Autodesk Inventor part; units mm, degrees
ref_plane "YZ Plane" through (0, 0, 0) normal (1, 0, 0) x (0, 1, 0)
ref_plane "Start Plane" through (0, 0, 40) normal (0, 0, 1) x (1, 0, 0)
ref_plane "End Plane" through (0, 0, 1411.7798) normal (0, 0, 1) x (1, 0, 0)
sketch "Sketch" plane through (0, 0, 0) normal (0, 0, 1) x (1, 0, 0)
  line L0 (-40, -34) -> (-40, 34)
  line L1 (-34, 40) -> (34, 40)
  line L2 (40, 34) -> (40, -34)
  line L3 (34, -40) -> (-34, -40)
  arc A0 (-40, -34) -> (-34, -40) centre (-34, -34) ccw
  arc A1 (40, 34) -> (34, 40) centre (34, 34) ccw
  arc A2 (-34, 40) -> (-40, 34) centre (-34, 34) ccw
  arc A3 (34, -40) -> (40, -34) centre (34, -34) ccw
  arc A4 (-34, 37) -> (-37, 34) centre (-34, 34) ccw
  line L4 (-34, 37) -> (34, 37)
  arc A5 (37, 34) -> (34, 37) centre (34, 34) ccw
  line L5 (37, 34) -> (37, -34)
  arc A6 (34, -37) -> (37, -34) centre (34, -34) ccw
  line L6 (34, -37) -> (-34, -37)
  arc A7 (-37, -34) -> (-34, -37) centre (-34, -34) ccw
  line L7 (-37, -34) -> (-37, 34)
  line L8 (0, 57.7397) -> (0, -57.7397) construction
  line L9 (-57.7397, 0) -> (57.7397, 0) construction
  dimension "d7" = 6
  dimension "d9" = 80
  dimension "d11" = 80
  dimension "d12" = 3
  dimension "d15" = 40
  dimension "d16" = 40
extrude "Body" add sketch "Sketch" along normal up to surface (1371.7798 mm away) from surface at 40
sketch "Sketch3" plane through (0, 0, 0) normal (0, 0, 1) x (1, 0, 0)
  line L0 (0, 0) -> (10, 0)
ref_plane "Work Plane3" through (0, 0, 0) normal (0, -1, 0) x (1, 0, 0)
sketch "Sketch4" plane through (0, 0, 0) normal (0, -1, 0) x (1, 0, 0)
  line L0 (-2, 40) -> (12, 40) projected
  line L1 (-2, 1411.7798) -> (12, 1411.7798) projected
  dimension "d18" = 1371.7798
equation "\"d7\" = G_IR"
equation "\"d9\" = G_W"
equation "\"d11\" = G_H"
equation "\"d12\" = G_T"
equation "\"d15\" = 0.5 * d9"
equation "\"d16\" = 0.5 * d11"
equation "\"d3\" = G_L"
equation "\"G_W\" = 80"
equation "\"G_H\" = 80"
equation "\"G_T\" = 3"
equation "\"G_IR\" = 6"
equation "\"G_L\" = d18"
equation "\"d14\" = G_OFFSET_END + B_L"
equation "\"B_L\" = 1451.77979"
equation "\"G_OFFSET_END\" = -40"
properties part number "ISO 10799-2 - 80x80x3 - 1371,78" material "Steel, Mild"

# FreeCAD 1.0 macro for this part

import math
import FreeCAD as App
import Part
import Sketcher

V = App.Vector

doc = App.newDocument("Part")
body = doc.addObject("PartDesign::Body", "Body")

sketch1 = doc.addObject("Sketcher::SketchObject", "Sketch")
body.addObject(sketch1)
sketch1.AttachmentSupport = (doc.XY_Plane, [""])
sketch1.MapMode = "FlatFace"
sketch1.AttachmentOffset = App.Placement(V(0, 0, 40), App.Rotation())
sketch1.addGeometry(Part.LineSegment(V(-40, 34, 0), V(-40, -34, 0)), False)
sketch1.addGeometry(Part.ArcOfCircle(Part.Circle(V(-34, -34, 0), V(0, 0, 1), 6), math.radians(180), math.radians(270)), False)
sketch1.addGeometry(Part.LineSegment(V(-34, -40, 0), V(34, -40, 0)), False)
sketch1.addGeometry(Part.ArcOfCircle(Part.Circle(V(34, -34, 0), V(0, 0, 1), 6), math.radians(-90), math.radians(0)), False)
sketch1.addGeometry(Part.LineSegment(V(40, -34, 0), V(40, 34, 0)), False)
sketch1.addGeometry(Part.ArcOfCircle(Part.Circle(V(34, 34, 0), V(0, 0, 1), 6), math.radians(0), math.radians(90)), False)
sketch1.addGeometry(Part.LineSegment(V(34, 40, 0), V(-34, 40, 0)), False)
sketch1.addGeometry(Part.ArcOfCircle(Part.Circle(V(-34, 34, 0), V(0, 0, 1), 6), math.radians(90), math.radians(180)), False)
sketch1.addGeometry(Part.ArcOfCircle(Part.Circle(V(-34, 34, 0), V(0, 0, 1), 3), math.radians(90), math.radians(180)), False)
sketch1.addGeometry(Part.LineSegment(V(-34, 37, 0), V(34, 37, 0)), False)
sketch1.addGeometry(Part.ArcOfCircle(Part.Circle(V(34, 34, 0), V(0, 0, 1), 3), math.radians(0), math.radians(90)), False)
sketch1.addGeometry(Part.LineSegment(V(37, 34, 0), V(37, -34, 0)), False)
sketch1.addGeometry(Part.ArcOfCircle(Part.Circle(V(34, -34, 0), V(0, 0, 1), 3), math.radians(-90), math.radians(0)), False)
sketch1.addGeometry(Part.LineSegment(V(34, -37, 0), V(-34, -37, 0)), False)
sketch1.addGeometry(Part.ArcOfCircle(Part.Circle(V(-34, -34, 0), V(0, 0, 1), 3), math.radians(180), math.radians(270)), False)
sketch1.addGeometry(Part.LineSegment(V(-37, -34, 0), V(-37, 34, 0)), False)
sketch1.addConstraint(Sketcher.Constraint("Tangent", 0, 2, 1, 1))
sketch1.addConstraint(Sketcher.Constraint("Tangent", 1, 2, 2, 1))
sketch1.addConstraint(Sketcher.Constraint("Tangent", 2, 2, 3, 1))
sketch1.addConstraint(Sketcher.Constraint("Tangent", 3, 2, 4, 1))
sketch1.addConstraint(Sketcher.Constraint("Tangent", 4, 2, 5, 1))
sketch1.addConstraint(Sketcher.Constraint("Tangent", 5, 2, 6, 1))
sketch1.addConstraint(Sketcher.Constraint("Tangent", 6, 2, 7, 1))
sketch1.addConstraint(Sketcher.Constraint("Tangent", 7, 2, 0, 1))
sketch1.addConstraint(Sketcher.Constraint("Tangent", 8, 1, 9, 1))
sketch1.addConstraint(Sketcher.Constraint("Tangent", 9, 2, 10, 2))
sketch1.addConstraint(Sketcher.Constraint("Tangent", 10, 1, 11, 1))
sketch1.addConstraint(Sketcher.Constraint("Tangent", 11, 2, 12, 2))
sketch1.addConstraint(Sketcher.Constraint("Tangent", 12, 1, 13, 1))
sketch1.addConstraint(Sketcher.Constraint("Tangent", 13, 2, 14, 2))
sketch1.addConstraint(Sketcher.Constraint("Tangent", 14, 1, 15, 1))
sketch1.addConstraint(Sketcher.Constraint("Tangent", 15, 2, 8, 2))
sketch1.addConstraint(Sketcher.Constraint("Vertical", 0))
sketch1.addConstraint(Sketcher.Constraint("Horizontal", 2))
sketch1.addConstraint(Sketcher.Constraint("Vertical", 4))
sketch1.addConstraint(Sketcher.Constraint("Horizontal", 6))
sketch1.addConstraint(Sketcher.Constraint("Horizontal", 9))
sketch1.addConstraint(Sketcher.Constraint("Vertical", 11))
sketch1.addConstraint(Sketcher.Constraint("Horizontal", 13))
sketch1.addConstraint(Sketcher.Constraint("Vertical", 15))
sketch1.addConstraint(Sketcher.Constraint("Coincident", 8, 3, 7, 3))
sketch1.addConstraint(Sketcher.Constraint("Coincident", 10, 3, 5, 3))
sketch1.addConstraint(Sketcher.Constraint("Coincident", 12, 3, 3, 3))
sketch1.addConstraint(Sketcher.Constraint("Equal", 1, 3))
sketch1.addConstraint(Sketcher.Constraint("Equal", 3, 5))
sketch1.addConstraint(Sketcher.Constraint("Equal", 5, 7))
sketch1.addConstraint(Sketcher.Constraint("Equal", 12, 14))
sketch1.addConstraint(Sketcher.Constraint("Symmetric", 1, 3, 5, 3, -1, 1))
sketch1.addConstraint(Sketcher.Constraint("Equal", 13, 0))
sketch1.addConstraint(Sketcher.Constraint("Radius", 1, 6.0))
sketch1.addConstraint(Sketcher.Constraint("Radius", 8, 3.0))
sketch1.addConstraint(Sketcher.Constraint("DistanceX", 0, 2, -1, 1, 40.0))
pad1 = doc.addObject("PartDesign::Pad", "Pad")
body.addObject(pad1)
pad1.Profile = sketch1
pad1.Length = 1371.7798

doc.recompute()
